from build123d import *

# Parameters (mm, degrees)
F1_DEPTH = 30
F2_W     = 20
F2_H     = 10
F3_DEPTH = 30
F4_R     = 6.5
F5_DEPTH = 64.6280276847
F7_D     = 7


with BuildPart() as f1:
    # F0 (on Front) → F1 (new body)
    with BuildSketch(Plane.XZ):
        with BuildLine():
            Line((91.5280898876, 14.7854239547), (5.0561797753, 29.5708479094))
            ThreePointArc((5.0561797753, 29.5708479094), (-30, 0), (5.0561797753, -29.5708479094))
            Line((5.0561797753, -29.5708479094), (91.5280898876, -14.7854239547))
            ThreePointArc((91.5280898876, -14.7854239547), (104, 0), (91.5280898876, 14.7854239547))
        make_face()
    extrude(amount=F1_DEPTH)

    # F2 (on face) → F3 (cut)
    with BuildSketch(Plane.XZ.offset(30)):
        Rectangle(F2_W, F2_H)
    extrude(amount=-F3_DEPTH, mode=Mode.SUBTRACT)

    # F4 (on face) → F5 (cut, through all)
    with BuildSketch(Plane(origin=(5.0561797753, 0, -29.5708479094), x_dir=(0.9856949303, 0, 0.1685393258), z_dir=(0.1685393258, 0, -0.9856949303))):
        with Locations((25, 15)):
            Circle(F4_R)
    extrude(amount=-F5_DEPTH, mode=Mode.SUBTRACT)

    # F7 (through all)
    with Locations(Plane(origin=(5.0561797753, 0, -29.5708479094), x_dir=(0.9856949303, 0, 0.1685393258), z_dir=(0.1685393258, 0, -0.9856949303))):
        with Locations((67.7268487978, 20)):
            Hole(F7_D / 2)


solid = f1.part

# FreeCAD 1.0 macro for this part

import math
import FreeCAD as App
import Part
import Sketcher

doc = App.newDocument("Part")
body = doc.addObject("PartDesign::Body", "Body")

# Sketch on XZ plane
sketch1 = body.newObject("Sketcher::SketchObject", "Sketch")
sketch1.AttachmentSupport = (doc.getObject("XZ_Plane"), [""])
sketch1.MapMode = "FlatFace"
sketch1.addGeometry([
    Part.LineSegment(App.Vector(92, 15, 0), App.Vector(5, 30, 0)),
    Part.ArcOfCircle(Part.Circle(App.Vector(0, 0, 0), App.Vector(0, 0, 1), 30), math.radians(80), math.radians(280)),
    Part.LineSegment(App.Vector(5, -30, 0), App.Vector(92, -15, 0)),
    Part.ArcOfCircle(Part.Circle(App.Vector(89, 0, 0), App.Vector(0, 0, 1), 15), math.radians(-80), math.radians(80)),
], False)
sketch1.addConstraint([
    Sketcher.Constraint("Tangent", 0, 2, 1, 1),
    Sketcher.Constraint("Tangent", 1, 2, 2, 1),
    Sketcher.Constraint("Tangent", 2, 2, 3, 1),
    Sketcher.Constraint("Tangent", 3, 2, 0, 1),
    Sketcher.Constraint("Coincident", 1, 3, -1, 1),
    Sketcher.Constraint("PointOnObject", 3, 3, -1),
    Sketcher.Constraint("Radius", 1, 30.0),
    Sketcher.Constraint("Radius", 3, 15.0),
    Sketcher.Constraint("DistanceX", -1, 1, 3, 3, 89.0),
])
pad1 = body.newObject("PartDesign::Pad", "Pad")
pad1.Profile = sketch1
pad1.Length = 30

# Sketch on XZ plane
sketch2 = body.newObject("Sketcher::SketchObject", "Sketch001")
sketch2.AttachmentSupport = (doc.getObject("XZ_Plane"), [""])
sketch2.MapMode = "FlatFace"
sketch2.AttachmentOffset = App.Placement(App.Vector(0, 0, 30), App.Rotation())
sketch2.addGeometry([
    Part.LineSegment(App.Vector(-10, 5, 0), App.Vector(-10, -5, 0)),
    Part.LineSegment(App.Vector(-10, -5, 0), App.Vector(10, -5, 0)),
    Part.LineSegment(App.Vector(10, -5, 0), App.Vector(10, 5, 0)),
    Part.LineSegment(App.Vector(10, 5, 0), App.Vector(-10, 5, 0)),
], False)
sketch2.addConstraint([
    Sketcher.Constraint("Coincident", 0, 2, 1, 1),
    Sketcher.Constraint("Coincident", 1, 2, 2, 1),
    Sketcher.Constraint("Coincident", 2, 2, 3, 1),
    Sketcher.Constraint("Coincident", 3, 2, 0, 1),
    Sketcher.Constraint("Vertical", 0),
    Sketcher.Constraint("Horizontal", 1),
    Sketcher.Constraint("Vertical", 2),
    Sketcher.Constraint("Horizontal", 3),
    Sketcher.Constraint("Symmetric", 0, 2, 2, 2, -1, 1),
    Sketcher.Constraint("DistanceX", 1, 1, 1, 2, 20.0),
    Sketcher.Constraint("DistanceY", 0, 2, 0, 1, 10.0),
])
pocket1 = body.newObject("PartDesign::Pocket", "Pocket")
pocket1.Profile = sketch2
pocket1.Length = 30

# Sketch on an angled plane
sketch3 = body.newObject("Sketcher::SketchObject", "Sketch002")
sketch3.Placement = App.Placement(App.Vector(5.05618, 0, -29.570848), App.Rotation(App.Vector(0.98569493, 0, 0.168539326), App.Vector(0, -0.999999999, 0), App.Vector(0.168539326, 0, -0.98569493), "ZXY"))
sketch3.addGeometry(Part.Circle(App.Vector(25, 15, 0), App.Vector(0, 0, 1), 6), False)
sketch3.addConstraint([
    Sketcher.Constraint("Diameter", 0, 13.0),
    Sketcher.Constraint("DistanceX", -1, 1, 0, 3, 25.0),
    Sketcher.Constraint("DistanceY", -1, 1, 0, 3, 15.0),
])
pocket2 = body.newObject("PartDesign::Pocket", "Pocket001")
pocket2.Profile = sketch3
pocket2.Type = "ThroughAll"

# Sketch on an angled plane
sketch4 = body.newObject("Sketcher::SketchObject", "Sketch003")
sketch4.Placement = App.Placement(App.Vector(5.05618, 0, -29.570848), App.Rotation(App.Vector(0.98569493, 0, 0.168539326), App.Vector(0, -0.999999999, 0), App.Vector(0.168539326, 0, -0.98569493), "ZXY"))
sketch4.addGeometry(Part.Circle(App.Vector(67.7, 20, 0), App.Vector(0, 0, 1), 3.5), False)
sketch4.addConstraint([
    Sketcher.Constraint("Diameter", 0, 7.0),
    Sketcher.Constraint("DistanceY", -1, 1, 0, 3, 20.0),
    Sketcher.Constraint("DistanceX", -1, 1, 0, 3, 67.726849),
])
doc.recompute()
hole = body.newObject("PartDesign::Hole", "Hole")
hole.Profile = sketch4
hole.ThreadType = "None"
hole.Diameter = 7
hole.DepthType = "ThroughAll"

doc.recompute()
